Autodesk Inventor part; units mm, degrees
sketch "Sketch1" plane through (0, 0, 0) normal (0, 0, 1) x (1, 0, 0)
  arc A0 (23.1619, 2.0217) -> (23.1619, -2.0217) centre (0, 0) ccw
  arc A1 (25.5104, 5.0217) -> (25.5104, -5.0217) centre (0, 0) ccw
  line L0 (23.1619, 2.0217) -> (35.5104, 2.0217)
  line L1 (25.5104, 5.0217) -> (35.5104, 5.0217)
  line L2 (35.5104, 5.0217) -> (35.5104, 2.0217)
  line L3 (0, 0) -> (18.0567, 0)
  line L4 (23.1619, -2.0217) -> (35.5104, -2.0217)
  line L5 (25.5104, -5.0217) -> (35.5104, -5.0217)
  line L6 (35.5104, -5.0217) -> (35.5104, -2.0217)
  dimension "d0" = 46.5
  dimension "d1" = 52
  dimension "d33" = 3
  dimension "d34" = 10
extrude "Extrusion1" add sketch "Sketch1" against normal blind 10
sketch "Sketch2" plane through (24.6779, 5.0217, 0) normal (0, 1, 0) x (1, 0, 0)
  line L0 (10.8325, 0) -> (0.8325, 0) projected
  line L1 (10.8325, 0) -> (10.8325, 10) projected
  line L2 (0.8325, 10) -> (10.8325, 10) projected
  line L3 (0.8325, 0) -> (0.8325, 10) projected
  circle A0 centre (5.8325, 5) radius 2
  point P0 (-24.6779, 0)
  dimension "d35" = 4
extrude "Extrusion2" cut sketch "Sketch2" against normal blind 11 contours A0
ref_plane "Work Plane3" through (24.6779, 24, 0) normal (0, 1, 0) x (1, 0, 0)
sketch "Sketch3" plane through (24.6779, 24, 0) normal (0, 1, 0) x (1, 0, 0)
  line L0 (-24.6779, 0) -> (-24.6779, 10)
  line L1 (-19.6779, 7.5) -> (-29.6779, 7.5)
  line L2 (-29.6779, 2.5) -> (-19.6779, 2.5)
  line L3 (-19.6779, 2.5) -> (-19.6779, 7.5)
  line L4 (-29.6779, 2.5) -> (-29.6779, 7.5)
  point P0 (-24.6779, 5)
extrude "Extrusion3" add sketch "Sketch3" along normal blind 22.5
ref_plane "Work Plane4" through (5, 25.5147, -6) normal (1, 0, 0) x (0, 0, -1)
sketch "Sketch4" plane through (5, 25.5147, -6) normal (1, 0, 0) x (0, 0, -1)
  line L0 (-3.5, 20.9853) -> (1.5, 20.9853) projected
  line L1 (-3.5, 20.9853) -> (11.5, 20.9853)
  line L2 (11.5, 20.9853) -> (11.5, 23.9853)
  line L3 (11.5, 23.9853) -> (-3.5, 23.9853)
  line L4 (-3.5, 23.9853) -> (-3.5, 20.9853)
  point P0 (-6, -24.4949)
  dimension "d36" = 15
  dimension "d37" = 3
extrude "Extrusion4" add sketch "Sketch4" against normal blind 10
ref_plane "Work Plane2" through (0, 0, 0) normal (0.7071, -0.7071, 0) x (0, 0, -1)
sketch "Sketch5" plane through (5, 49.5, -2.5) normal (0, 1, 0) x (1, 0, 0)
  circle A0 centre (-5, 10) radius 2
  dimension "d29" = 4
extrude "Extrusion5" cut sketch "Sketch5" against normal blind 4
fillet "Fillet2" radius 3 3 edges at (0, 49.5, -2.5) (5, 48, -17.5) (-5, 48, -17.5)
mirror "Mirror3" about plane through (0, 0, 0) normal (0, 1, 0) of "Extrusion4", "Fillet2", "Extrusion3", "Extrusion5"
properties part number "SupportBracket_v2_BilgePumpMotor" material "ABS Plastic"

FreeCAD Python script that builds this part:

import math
import FreeCAD as App
import Part
import Sketcher


def edges_at(feature, points):
    """Names of the edges that pass closest to the given points."""
    edges = feature.Shape.Edges
    near = lambda p: min(range(len(edges)), key=lambda i: edges[i].distToShape(Part.Vertex(*p))[0])
    return sorted({f"Edge{near(p) + 1}" for p in points})

doc = App.newDocument("Part")
body = doc.addObject("PartDesign::Body", "Body")

sketch1 = body.newObject("Sketcher::SketchObject", "Sketch")
sketch1.AttachmentSupport = (doc.getObject("XY_Plane"), [""])
sketch1.MapMode = "FlatFace"
sketch1.addGeometry(Part.ArcOfCircle(Part.Circle(App.Vector(0, 0, 0), App.Vector(0, 0, 1), 23.2), math.radians(5), math.radians(355)), False)
sketch1.addGeometry(Part.LineSegment(App.Vector(23.2, 2, 0), App.Vector(35.5, 2, 0)), False)
sketch1.addGeometry(Part.LineSegment(App.Vector(35.5, 2, 0), App.Vector(35.5, 5, 0)), False)
sketch1.addGeometry(Part.LineSegment(App.Vector(35.5, 5, 0), App.Vector(25.5, 5, 0)), False)
sketch1.addGeometry(Part.ArcOfCircle(Part.Circle(App.Vector(0, 0, 0), App.Vector(0, 0, 1), 26), math.radians(11), math.radians(349)), False)
sketch1.addGeometry(Part.LineSegment(App.Vector(25.5, -5, 0), App.Vector(35.5, -5, 0)), False)
sketch1.addGeometry(Part.LineSegment(App.Vector(35.5, -5, 0), App.Vector(35.5, -2, 0)), False)
sketch1.addGeometry(Part.LineSegment(App.Vector(35.5, -2, 0), App.Vector(23.2, -2, 0)), False)
sketch1.addConstraint(Sketcher.Constraint("Coincident", 0, 1, 1, 1))
sketch1.addConstraint(Sketcher.Constraint("Coincident", 1, 2, 2, 1))
sketch1.addConstraint(Sketcher.Constraint("Coincident", 2, 2, 3, 1))
sketch1.addConstraint(Sketcher.Constraint("Coincident", 3, 2, 4, 1))
sketch1.addConstraint(Sketcher.Constraint("Coincident", 4, 2, 5, 1))
sketch1.addConstraint(Sketcher.Constraint("Coincident", 5, 2, 6, 1))
sketch1.addConstraint(Sketcher.Constraint("Coincident", 6, 2, 7, 1))
sketch1.addConstraint(Sketcher.Constraint("Coincident", 7, 2, 0, 2))
sketch1.addConstraint(Sketcher.Constraint("Horizontal", 1))
sketch1.addConstraint(Sketcher.Constraint("Vertical", 2))
sketch1.addConstraint(Sketcher.Constraint("Horizontal", 3))
sketch1.addConstraint(Sketcher.Constraint("Horizontal", 5))
sketch1.addConstraint(Sketcher.Constraint("Vertical", 6))
sketch1.addConstraint(Sketcher.Constraint("Horizontal", 7))
sketch1.addConstraint(Sketcher.Constraint("Coincident", 0, 3, -1, 1))
sketch1.addConstraint(Sketcher.Constraint("Coincident", 4, 3, -1, 1))
sketch1.addConstraint(Sketcher.Constraint("Symmetric", 2, 2, 5, 2, -1))
sketch1.addConstraint(Sketcher.Constraint("Vertical", 0, 1, 7, 2))
sketch1.addConstraint(Sketcher.Constraint("Radius", 4, 26.0))
sketch1.addConstraint(Sketcher.Constraint("DistanceX", 3, 2, 3, 1, 10.0))
sketch1.addConstraint(Sketcher.Constraint("DistanceY", 2, 1, 2, 2, 3.0))
sketch1.addConstraint(Sketcher.Constraint("Radius", 0, 23.25))
sketch1.addConstraint(Sketcher.Constraint("DistanceX", 1, 1, 1, 2, 12.3485))
pad1 = body.newObject("PartDesign::Pad", "Pad")
pad1.Profile = sketch1
pad1.Length = 10
pad1.Reversed = True

sketch2 = body.newObject("Sketcher::SketchObject", "Sketch001")
sketch2.AttachmentSupport = (doc.getObject("XZ_Plane"), [""])
sketch2.MapMode = "FlatFace"
sketch2.AttachmentOffset = App.Placement(App.Vector(0, 0, -5.0217), App.Rotation())
sketch2.addGeometry(Part.Circle(App.Vector(30.5, -5, 0), App.Vector(0, 0, 1), 2), False)
sketch2.addConstraint(Sketcher.Constraint("Diameter", 0, 4.0))
sketch2.addConstraint(Sketcher.Constraint("DistanceY", 0, 3, -1, 1, 5.0))
sketch2.addConstraint(Sketcher.Constraint("DistanceX", -1, 1, 0, 3, 30.5104))
pocket1 = body.newObject("PartDesign::Pocket", "Pocket")
pocket1.Profile = sketch2
pocket1.Length = 11
pocket1.Reversed = True

sketch3 = body.newObject("Sketcher::SketchObject", "Sketch002")
sketch3.AttachmentSupport = (doc.getObject("XZ_Plane"), [""])
sketch3.MapMode = "FlatFace"
sketch3.AttachmentOffset = App.Placement(App.Vector(0, 0, -24), App.Rotation())
sketch3.addGeometry(Part.LineSegment(App.Vector(-5, -2, 0), App.Vector(5, -2, 0)), False)
sketch3.addGeometry(Part.LineSegment(App.Vector(5, -2, 0), App.Vector(5, -8, 0)), False)
sketch3.addGeometry(Part.LineSegment(App.Vector(5, -8, 0), App.Vector(-5, -8, 0)), False)
sketch3.addGeometry(Part.LineSegment(App.Vector(-5, -8, 0), App.Vector(-5, -2, 0)), False)
sketch3.addConstraint(Sketcher.Constraint("Coincident", 0, 2, 1, 1))
sketch3.addConstraint(Sketcher.Constraint("Coincident", 1, 2, 2, 1))
sketch3.addConstraint(Sketcher.Constraint("Coincident", 2, 2, 3, 1))
sketch3.addConstraint(Sketcher.Constraint("Coincident", 3, 2, 0, 1))
sketch3.addConstraint(Sketcher.Constraint("Horizontal", 0))
sketch3.addConstraint(Sketcher.Constraint("Vertical", 1))
sketch3.addConstraint(Sketcher.Constraint("Horizontal", 2))
sketch3.addConstraint(Sketcher.Constraint("Vertical", 3))
sketch3.addConstraint(Sketcher.Constraint("DistanceX", 0, 1, 0, 2, 10.0))
sketch3.addConstraint(Sketcher.Constraint("DistanceY", 1, 2, 1, 1, 5.0))
sketch3.addConstraint(Sketcher.Constraint("DistanceX", -1, 1, 0, 2, 5.0))
sketch3.addConstraint(Sketcher.Constraint("DistanceY", 0, 2, -1, 1, 2.5))
pad2 = body.newObject("PartDesign::Pad", "Pad001")
pad2.Profile = sketch3
pad2.Length = 22.5
pad2.Reversed = True

sketch4 = body.newObject("Sketcher::SketchObject", "Sketch003")
sketch4.AttachmentSupport = (doc.getObject("YZ_Plane"), [""])
sketch4.MapMode = "FlatFace"
sketch4.AttachmentOffset = App.Placement(App.Vector(0, 0, 5), App.Rotation())
sketch4.addGeometry(Part.LineSegment(App.Vector(49.5, -2.5, 0), App.Vector(46.5, -2.5, 0)), False)
sketch4.addGeometry(Part.LineSegment(App.Vector(46.5, -2.5, 0), App.Vector(46.5, -17.5, 0)), False)
sketch4.addGeometry(Part.LineSegment(App.Vector(46.5, -17.5, 0), App.Vector(49.5, -17.5, 0)), False)
sketch4.addGeometry(Part.LineSegment(App.Vector(49.5, -17.5, 0), App.Vector(49.5, -2.5, 0)), False)
sketch4.addConstraint(Sketcher.Constraint("Coincident", 0, 2, 1, 1))
sketch4.addConstraint(Sketcher.Constraint("Coincident", 1, 2, 2, 1))
sketch4.addConstraint(Sketcher.Constraint("Coincident", 2, 2, 3, 1))
sketch4.addConstraint(Sketcher.Constraint("Coincident", 3, 2, 0, 1))
sketch4.addConstraint(Sketcher.Constraint("Horizontal", 0))
sketch4.addConstraint(Sketcher.Constraint("Vertical", 1))
sketch4.addConstraint(Sketcher.Constraint("Horizontal", 2))
sketch4.addConstraint(Sketcher.Constraint("Vertical", 3))
sketch4.addConstraint(Sketcher.Constraint("DistanceX", 0, 2, 0, 1, 3.0))
sketch4.addConstraint(Sketcher.Constraint("DistanceY", 1, 2, 1, 1, 15.0))
sketch4.addConstraint(Sketcher.Constraint("DistanceX", -1, 1, 0, 2, 46.5))
sketch4.addConstraint(Sketcher.Constraint("DistanceY", 0, 2, -1, 1, 2.5))
pad3 = body.newObject("PartDesign::Pad", "Pad002")
pad3.Profile = sketch4
pad3.Length = 10
pad3.Reversed = True

sketch5 = body.newObject("Sketcher::SketchObject", "Sketch004")
sketch5.AttachmentSupport = (doc.getObject("XZ_Plane"), [""])
sketch5.MapMode = "FlatFace"
sketch5.AttachmentOffset = App.Placement(App.Vector(0, 0, -49.5), App.Rotation())
sketch5.addGeometry(Part.Circle(App.Vector(0, -12.5, 0), App.Vector(0, 0, 1), 2), False)
sketch5.addConstraint(Sketcher.Constraint("PointOnObject", 0, 3, -2))
sketch5.addConstraint(Sketcher.Constraint("Diameter", 0, 4.0))
sketch5.addConstraint(Sketcher.Constraint("DistanceY", 0, 3, -1, 1, 12.5))
pocket2 = body.newObject("PartDesign::Pocket", "Pocket001")
pocket2.Profile = sketch5
pocket2.Length = 4
pocket2.Reversed = True
doc.recompute()

fillet = body.newObject("PartDesign::Fillet", "Fillet")
fillet.Base = (pocket2, edges_at(pocket2, [(0, 49.5, -2.5), (5, 48, -17.5), (-5, 48, -17.5)]))
fillet.Radius = 3
doc.recompute()

mirrored = body.newObject("PartDesign::Mirrored", "Mirrored")
mirrored.Originals = [pad3, fillet, pad2, pocket2]
mirrored.MirrorPlane = (doc.getObject("XZ_Plane"), [""])
body.Tip = mirrored

doc.recompute()
